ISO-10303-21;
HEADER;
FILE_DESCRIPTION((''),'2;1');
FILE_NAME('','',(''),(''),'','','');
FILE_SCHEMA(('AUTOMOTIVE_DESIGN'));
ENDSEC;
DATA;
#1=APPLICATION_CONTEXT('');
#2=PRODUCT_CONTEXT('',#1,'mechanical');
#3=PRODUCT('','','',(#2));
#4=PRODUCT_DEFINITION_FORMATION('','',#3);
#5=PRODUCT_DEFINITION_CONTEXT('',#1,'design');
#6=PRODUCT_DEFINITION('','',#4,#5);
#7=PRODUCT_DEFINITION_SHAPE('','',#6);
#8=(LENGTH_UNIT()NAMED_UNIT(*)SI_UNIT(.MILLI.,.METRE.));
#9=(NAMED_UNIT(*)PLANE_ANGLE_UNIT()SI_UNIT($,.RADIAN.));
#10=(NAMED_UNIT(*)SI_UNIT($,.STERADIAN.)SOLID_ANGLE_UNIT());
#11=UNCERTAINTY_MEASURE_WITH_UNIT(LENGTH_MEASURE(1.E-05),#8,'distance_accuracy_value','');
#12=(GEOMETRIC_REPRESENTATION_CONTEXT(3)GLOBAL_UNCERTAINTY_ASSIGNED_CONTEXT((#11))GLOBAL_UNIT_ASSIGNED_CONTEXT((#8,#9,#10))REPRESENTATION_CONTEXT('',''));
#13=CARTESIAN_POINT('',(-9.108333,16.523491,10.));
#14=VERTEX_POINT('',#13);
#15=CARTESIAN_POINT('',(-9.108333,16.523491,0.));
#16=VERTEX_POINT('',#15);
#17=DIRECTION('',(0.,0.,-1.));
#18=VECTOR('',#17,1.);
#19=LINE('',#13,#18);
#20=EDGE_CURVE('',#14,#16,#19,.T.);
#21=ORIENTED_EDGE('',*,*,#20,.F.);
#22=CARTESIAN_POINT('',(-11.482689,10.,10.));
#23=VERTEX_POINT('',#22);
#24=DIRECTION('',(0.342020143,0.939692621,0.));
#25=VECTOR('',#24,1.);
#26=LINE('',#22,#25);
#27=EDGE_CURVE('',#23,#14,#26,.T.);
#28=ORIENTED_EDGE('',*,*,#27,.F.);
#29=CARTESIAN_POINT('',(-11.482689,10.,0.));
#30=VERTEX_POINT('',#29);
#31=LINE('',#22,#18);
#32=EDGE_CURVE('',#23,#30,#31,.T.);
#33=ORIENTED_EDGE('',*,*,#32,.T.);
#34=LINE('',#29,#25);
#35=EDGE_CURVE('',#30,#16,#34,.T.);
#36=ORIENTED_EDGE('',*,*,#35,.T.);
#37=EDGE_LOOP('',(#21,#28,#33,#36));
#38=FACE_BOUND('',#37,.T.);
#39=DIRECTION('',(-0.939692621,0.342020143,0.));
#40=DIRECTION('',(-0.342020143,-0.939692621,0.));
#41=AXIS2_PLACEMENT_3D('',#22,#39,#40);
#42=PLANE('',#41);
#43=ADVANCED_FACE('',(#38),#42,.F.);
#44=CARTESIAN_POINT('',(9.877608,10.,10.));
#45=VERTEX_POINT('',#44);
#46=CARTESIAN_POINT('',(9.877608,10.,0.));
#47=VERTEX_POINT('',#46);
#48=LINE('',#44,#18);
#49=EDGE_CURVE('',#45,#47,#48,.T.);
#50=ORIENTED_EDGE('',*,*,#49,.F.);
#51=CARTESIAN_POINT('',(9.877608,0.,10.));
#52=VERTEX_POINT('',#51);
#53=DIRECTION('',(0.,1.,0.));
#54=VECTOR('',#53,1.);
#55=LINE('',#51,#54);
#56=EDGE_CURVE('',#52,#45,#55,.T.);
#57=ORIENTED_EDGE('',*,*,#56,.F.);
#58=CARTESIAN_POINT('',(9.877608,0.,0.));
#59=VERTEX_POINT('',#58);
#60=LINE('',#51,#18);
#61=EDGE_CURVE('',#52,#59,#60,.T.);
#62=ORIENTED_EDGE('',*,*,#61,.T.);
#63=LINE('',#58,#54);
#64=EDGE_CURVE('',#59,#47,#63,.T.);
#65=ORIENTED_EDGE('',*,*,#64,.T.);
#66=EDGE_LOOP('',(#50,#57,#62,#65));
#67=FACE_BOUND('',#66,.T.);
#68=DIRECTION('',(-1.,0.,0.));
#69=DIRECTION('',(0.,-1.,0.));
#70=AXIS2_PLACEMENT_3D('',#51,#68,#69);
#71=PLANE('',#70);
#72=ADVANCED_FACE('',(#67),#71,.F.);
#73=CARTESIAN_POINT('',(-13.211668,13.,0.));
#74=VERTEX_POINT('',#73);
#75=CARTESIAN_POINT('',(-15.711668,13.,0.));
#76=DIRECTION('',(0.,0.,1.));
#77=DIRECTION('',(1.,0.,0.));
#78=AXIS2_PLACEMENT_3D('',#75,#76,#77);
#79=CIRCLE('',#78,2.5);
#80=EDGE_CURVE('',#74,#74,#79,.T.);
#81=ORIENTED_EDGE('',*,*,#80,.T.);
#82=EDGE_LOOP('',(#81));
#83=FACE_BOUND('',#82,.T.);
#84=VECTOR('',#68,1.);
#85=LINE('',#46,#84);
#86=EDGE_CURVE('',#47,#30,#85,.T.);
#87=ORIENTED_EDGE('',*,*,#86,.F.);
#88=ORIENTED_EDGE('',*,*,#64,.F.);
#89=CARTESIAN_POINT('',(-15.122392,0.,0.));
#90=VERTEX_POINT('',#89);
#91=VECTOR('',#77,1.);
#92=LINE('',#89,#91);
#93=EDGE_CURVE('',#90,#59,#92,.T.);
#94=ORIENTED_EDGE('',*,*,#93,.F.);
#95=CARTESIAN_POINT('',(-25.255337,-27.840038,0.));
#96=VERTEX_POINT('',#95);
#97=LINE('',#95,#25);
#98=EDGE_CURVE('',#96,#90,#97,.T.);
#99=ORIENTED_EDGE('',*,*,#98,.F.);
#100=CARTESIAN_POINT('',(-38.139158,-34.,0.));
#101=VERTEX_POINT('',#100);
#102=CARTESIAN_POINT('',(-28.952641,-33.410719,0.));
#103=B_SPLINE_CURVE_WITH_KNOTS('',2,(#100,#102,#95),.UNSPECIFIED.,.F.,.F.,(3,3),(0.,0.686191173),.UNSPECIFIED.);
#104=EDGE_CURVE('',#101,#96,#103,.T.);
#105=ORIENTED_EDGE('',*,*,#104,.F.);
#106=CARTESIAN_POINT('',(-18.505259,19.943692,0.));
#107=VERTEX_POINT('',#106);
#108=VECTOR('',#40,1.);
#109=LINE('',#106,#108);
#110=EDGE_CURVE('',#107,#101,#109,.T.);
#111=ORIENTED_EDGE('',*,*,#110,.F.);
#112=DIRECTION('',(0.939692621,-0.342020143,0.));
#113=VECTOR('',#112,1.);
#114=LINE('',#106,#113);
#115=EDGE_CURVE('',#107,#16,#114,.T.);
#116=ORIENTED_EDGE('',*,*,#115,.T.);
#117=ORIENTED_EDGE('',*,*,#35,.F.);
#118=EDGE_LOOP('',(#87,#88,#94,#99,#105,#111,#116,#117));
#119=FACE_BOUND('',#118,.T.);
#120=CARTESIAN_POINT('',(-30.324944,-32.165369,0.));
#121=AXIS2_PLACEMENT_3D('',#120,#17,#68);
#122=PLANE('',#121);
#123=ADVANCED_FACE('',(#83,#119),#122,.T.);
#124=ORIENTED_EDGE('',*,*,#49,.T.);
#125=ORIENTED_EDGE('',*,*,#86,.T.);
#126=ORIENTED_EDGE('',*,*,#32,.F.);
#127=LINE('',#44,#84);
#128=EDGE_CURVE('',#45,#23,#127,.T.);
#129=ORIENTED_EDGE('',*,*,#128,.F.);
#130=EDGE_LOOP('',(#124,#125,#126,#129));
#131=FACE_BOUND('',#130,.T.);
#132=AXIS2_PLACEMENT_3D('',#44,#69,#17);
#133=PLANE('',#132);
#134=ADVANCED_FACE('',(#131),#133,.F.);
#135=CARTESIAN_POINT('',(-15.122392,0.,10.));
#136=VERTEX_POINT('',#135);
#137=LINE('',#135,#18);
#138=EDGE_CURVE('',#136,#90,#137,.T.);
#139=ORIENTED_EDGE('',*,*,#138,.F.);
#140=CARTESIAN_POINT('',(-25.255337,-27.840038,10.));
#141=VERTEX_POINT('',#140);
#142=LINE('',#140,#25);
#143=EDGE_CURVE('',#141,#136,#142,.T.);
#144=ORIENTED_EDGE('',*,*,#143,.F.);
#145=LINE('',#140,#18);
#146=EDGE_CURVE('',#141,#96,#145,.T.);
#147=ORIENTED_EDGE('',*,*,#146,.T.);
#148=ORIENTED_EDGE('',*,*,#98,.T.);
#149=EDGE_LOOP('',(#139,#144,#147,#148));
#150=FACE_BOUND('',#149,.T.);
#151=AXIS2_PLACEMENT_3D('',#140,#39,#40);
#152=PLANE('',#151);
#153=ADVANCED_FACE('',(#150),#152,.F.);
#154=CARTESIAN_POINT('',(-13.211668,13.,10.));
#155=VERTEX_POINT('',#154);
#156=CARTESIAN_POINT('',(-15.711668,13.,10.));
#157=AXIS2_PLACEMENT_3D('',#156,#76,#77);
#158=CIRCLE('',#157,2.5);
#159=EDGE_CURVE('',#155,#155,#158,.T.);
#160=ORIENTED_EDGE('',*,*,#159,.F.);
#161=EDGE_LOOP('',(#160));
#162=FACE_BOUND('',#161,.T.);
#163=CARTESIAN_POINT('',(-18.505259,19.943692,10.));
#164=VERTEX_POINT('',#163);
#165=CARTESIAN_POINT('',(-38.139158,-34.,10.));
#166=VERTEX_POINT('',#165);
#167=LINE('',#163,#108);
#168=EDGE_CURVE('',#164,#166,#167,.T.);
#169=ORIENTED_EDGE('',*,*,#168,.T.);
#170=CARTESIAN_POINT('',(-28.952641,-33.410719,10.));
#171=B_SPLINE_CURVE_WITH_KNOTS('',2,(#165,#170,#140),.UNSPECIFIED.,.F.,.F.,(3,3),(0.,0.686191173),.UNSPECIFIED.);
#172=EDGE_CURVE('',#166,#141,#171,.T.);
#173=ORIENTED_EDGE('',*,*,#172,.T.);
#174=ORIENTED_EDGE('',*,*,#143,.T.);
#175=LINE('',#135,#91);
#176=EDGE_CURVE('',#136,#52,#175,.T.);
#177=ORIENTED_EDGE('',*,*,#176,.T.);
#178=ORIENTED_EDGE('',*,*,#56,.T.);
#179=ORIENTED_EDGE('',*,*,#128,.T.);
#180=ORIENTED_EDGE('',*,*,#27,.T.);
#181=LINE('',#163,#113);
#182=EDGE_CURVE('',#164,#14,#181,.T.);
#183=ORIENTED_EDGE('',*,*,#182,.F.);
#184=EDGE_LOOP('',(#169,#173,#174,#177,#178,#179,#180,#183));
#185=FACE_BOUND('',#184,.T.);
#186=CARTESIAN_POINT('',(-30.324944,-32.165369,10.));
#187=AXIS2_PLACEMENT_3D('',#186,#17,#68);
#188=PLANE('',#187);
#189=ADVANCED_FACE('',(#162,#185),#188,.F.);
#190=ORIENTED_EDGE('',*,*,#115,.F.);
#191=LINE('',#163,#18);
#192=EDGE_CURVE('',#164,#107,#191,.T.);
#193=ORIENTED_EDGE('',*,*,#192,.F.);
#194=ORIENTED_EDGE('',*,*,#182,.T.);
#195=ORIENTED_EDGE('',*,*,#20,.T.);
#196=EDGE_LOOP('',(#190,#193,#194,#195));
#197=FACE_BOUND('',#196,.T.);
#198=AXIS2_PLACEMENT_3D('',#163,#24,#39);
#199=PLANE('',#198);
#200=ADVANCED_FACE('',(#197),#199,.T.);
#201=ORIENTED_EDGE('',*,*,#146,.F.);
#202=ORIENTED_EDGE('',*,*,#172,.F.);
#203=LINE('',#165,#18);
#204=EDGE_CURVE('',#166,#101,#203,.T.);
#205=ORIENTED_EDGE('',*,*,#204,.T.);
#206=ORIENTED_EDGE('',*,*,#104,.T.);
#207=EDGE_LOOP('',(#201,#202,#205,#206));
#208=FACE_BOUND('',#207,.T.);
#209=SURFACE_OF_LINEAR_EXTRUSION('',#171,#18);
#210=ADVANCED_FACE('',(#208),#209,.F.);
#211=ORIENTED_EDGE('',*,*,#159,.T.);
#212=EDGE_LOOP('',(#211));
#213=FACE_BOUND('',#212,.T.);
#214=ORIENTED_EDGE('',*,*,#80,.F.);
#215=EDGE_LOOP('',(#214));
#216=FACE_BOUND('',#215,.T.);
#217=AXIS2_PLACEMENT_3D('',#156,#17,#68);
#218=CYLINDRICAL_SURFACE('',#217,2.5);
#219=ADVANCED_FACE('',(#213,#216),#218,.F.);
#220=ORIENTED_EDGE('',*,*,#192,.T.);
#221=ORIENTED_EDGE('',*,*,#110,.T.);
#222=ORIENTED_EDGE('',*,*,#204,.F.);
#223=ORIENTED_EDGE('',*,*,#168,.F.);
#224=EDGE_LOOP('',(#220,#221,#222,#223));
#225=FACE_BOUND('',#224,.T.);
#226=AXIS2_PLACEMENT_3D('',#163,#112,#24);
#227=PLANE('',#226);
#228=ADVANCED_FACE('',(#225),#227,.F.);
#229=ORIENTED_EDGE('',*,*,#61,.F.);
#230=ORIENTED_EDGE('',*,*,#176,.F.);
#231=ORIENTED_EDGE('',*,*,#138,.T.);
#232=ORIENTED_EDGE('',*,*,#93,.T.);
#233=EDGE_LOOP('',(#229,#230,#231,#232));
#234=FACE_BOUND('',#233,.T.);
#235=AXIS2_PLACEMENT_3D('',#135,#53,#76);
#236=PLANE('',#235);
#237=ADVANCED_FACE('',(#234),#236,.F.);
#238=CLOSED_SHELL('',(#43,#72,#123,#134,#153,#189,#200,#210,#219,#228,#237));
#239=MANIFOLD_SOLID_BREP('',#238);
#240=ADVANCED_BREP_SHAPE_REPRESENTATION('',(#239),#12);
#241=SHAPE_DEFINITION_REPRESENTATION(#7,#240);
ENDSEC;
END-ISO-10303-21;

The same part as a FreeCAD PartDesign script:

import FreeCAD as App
import Part
import Sketcher

V = App.Vector
Q = App.Units.Quantity

doc = App.newDocument("Part")
params = doc.addObject("Spreadsheet::Sheet", "Params")
for row, (alias, value) in enumerate([
    ("sketch1_diameter", "5 mm"),
    ("sketch1_width", "25 mm"),
    ("sketch1_height", "10 mm"),
    ("sketch1_length", "10 mm"),
    ("pad1_length", "10 mm"),
], start=1):
    params.set(f"A{row}", alias)
    params.set(f"B{row}", "=" + value)
    params.setAlias(f"B{row}", alias)

body = doc.addObject("PartDesign::Body", "Body")

sketch1 = doc.addObject("Sketcher::SketchObject", "Sketch")
body.addObject(sketch1)
sketch1.AttachmentSupport = (doc.XY_Plane, [""])
sketch1.MapMode = "FlatFace"
sketch1.addGeometry([
    Part.LineSegment(V(9.877608, 0, 0), V(9.877608, 10, 0)),
    Part.LineSegment(V(9.877608, 10, 0), V(-11.482689, 10, 0)),
    Part.LineSegment(V(-11.482689, 10, 0), V(-9.108333, 16.523491, 0)),
    Part.LineSegment(V(-9.108333, 16.523491, 0), V(-18.505259, 19.943692, 0)),
    Part.LineSegment(V(-18.505259, 19.943692, 0), V(-38.139158, -34, 0)),
    Part.BSplineCurve([V(-38.139158, -34, 0), V(-28.952641, -33.410719, 0), V(-25.255337, -27.840038, 0)], [3, 3], [0, 0.686191173], False, 2, [1, 1, 1], False),
    Part.LineSegment(V(-25.255337, -27.840038, 0), V(-15.122392, 0, 0)),
    Part.LineSegment(V(-15.122392, 0, 0), V(9.877608, 0, 0)),
    Part.Circle(V(-15.711668, 13, 0), V(0, 0, 1), 2.5),
], False)
sketch1.addConstraint([
    Sketcher.Constraint("Block", 5),
    Sketcher.Constraint("Coincident", 0, 2, 1, 1),
    Sketcher.Constraint("Coincident", 1, 2, 2, 1),
    Sketcher.Constraint("Coincident", 2, 2, 3, 1),
    Sketcher.Constraint("Coincident", 3, 2, 4, 1),
    Sketcher.Constraint("Coincident", 4, 2, 5, 1),
    Sketcher.Constraint("Coincident", 5, 2, 6, 1),
    Sketcher.Constraint("Coincident", 6, 2, 7, 1),
    Sketcher.Constraint("Coincident", 7, 2, 0, 1),
    Sketcher.Constraint("Vertical", 0),
    Sketcher.Constraint("Horizontal", 1),
    Sketcher.Constraint("Horizontal", 7),
    Sketcher.Constraint("PointOnObject", 6, 2, -1),
    Sketcher.Constraint("Diameter", 8, Q("5 mm")),
    Sketcher.Constraint("DistanceX", 7, 1, 7, 2, Q("25 mm")),
    Sketcher.Constraint("DistanceY", 0, 1, 0, 2, Q("10 mm")),
    Sketcher.Constraint("Distance", 3, Q("10 mm")),
    Sketcher.Constraint("DistanceY", -1, 1, 8, 3, Q("13 mm")),
    Sketcher.Constraint("DistanceY", 2, 2, 3, 2, Q("3.420201 mm")),
    Sketcher.Constraint("DistanceX", 4, 2, 3, 2, Q("19.633898 mm")),
    Sketcher.Constraint("Distance", 4, Q("57.405678 mm")),
    Sketcher.Constraint("Distance", 6, Q("29.62675 mm")),
    Sketcher.Constraint("DistanceX", 1, 2, 1, 1, Q("21.360298 mm")),
    Sketcher.Constraint("DistanceX", 8, 3, 1, 2, Q("4.228978 mm")),
])
sketch1.setExpression("Constraints[13]", "Params.sketch1_diameter")
sketch1.setExpression("Constraints[14]", "Params.sketch1_width")
sketch1.setExpression("Constraints[15]", "Params.sketch1_height")
sketch1.setExpression("Constraints[16]", "Params.sketch1_length")
pad1 = doc.addObject("PartDesign::Pad", "Pad")
body.addObject(pad1)
pad1.Profile = sketch1
pad1.setExpression("Length", "Params.pad1_length")

doc.recompute()
